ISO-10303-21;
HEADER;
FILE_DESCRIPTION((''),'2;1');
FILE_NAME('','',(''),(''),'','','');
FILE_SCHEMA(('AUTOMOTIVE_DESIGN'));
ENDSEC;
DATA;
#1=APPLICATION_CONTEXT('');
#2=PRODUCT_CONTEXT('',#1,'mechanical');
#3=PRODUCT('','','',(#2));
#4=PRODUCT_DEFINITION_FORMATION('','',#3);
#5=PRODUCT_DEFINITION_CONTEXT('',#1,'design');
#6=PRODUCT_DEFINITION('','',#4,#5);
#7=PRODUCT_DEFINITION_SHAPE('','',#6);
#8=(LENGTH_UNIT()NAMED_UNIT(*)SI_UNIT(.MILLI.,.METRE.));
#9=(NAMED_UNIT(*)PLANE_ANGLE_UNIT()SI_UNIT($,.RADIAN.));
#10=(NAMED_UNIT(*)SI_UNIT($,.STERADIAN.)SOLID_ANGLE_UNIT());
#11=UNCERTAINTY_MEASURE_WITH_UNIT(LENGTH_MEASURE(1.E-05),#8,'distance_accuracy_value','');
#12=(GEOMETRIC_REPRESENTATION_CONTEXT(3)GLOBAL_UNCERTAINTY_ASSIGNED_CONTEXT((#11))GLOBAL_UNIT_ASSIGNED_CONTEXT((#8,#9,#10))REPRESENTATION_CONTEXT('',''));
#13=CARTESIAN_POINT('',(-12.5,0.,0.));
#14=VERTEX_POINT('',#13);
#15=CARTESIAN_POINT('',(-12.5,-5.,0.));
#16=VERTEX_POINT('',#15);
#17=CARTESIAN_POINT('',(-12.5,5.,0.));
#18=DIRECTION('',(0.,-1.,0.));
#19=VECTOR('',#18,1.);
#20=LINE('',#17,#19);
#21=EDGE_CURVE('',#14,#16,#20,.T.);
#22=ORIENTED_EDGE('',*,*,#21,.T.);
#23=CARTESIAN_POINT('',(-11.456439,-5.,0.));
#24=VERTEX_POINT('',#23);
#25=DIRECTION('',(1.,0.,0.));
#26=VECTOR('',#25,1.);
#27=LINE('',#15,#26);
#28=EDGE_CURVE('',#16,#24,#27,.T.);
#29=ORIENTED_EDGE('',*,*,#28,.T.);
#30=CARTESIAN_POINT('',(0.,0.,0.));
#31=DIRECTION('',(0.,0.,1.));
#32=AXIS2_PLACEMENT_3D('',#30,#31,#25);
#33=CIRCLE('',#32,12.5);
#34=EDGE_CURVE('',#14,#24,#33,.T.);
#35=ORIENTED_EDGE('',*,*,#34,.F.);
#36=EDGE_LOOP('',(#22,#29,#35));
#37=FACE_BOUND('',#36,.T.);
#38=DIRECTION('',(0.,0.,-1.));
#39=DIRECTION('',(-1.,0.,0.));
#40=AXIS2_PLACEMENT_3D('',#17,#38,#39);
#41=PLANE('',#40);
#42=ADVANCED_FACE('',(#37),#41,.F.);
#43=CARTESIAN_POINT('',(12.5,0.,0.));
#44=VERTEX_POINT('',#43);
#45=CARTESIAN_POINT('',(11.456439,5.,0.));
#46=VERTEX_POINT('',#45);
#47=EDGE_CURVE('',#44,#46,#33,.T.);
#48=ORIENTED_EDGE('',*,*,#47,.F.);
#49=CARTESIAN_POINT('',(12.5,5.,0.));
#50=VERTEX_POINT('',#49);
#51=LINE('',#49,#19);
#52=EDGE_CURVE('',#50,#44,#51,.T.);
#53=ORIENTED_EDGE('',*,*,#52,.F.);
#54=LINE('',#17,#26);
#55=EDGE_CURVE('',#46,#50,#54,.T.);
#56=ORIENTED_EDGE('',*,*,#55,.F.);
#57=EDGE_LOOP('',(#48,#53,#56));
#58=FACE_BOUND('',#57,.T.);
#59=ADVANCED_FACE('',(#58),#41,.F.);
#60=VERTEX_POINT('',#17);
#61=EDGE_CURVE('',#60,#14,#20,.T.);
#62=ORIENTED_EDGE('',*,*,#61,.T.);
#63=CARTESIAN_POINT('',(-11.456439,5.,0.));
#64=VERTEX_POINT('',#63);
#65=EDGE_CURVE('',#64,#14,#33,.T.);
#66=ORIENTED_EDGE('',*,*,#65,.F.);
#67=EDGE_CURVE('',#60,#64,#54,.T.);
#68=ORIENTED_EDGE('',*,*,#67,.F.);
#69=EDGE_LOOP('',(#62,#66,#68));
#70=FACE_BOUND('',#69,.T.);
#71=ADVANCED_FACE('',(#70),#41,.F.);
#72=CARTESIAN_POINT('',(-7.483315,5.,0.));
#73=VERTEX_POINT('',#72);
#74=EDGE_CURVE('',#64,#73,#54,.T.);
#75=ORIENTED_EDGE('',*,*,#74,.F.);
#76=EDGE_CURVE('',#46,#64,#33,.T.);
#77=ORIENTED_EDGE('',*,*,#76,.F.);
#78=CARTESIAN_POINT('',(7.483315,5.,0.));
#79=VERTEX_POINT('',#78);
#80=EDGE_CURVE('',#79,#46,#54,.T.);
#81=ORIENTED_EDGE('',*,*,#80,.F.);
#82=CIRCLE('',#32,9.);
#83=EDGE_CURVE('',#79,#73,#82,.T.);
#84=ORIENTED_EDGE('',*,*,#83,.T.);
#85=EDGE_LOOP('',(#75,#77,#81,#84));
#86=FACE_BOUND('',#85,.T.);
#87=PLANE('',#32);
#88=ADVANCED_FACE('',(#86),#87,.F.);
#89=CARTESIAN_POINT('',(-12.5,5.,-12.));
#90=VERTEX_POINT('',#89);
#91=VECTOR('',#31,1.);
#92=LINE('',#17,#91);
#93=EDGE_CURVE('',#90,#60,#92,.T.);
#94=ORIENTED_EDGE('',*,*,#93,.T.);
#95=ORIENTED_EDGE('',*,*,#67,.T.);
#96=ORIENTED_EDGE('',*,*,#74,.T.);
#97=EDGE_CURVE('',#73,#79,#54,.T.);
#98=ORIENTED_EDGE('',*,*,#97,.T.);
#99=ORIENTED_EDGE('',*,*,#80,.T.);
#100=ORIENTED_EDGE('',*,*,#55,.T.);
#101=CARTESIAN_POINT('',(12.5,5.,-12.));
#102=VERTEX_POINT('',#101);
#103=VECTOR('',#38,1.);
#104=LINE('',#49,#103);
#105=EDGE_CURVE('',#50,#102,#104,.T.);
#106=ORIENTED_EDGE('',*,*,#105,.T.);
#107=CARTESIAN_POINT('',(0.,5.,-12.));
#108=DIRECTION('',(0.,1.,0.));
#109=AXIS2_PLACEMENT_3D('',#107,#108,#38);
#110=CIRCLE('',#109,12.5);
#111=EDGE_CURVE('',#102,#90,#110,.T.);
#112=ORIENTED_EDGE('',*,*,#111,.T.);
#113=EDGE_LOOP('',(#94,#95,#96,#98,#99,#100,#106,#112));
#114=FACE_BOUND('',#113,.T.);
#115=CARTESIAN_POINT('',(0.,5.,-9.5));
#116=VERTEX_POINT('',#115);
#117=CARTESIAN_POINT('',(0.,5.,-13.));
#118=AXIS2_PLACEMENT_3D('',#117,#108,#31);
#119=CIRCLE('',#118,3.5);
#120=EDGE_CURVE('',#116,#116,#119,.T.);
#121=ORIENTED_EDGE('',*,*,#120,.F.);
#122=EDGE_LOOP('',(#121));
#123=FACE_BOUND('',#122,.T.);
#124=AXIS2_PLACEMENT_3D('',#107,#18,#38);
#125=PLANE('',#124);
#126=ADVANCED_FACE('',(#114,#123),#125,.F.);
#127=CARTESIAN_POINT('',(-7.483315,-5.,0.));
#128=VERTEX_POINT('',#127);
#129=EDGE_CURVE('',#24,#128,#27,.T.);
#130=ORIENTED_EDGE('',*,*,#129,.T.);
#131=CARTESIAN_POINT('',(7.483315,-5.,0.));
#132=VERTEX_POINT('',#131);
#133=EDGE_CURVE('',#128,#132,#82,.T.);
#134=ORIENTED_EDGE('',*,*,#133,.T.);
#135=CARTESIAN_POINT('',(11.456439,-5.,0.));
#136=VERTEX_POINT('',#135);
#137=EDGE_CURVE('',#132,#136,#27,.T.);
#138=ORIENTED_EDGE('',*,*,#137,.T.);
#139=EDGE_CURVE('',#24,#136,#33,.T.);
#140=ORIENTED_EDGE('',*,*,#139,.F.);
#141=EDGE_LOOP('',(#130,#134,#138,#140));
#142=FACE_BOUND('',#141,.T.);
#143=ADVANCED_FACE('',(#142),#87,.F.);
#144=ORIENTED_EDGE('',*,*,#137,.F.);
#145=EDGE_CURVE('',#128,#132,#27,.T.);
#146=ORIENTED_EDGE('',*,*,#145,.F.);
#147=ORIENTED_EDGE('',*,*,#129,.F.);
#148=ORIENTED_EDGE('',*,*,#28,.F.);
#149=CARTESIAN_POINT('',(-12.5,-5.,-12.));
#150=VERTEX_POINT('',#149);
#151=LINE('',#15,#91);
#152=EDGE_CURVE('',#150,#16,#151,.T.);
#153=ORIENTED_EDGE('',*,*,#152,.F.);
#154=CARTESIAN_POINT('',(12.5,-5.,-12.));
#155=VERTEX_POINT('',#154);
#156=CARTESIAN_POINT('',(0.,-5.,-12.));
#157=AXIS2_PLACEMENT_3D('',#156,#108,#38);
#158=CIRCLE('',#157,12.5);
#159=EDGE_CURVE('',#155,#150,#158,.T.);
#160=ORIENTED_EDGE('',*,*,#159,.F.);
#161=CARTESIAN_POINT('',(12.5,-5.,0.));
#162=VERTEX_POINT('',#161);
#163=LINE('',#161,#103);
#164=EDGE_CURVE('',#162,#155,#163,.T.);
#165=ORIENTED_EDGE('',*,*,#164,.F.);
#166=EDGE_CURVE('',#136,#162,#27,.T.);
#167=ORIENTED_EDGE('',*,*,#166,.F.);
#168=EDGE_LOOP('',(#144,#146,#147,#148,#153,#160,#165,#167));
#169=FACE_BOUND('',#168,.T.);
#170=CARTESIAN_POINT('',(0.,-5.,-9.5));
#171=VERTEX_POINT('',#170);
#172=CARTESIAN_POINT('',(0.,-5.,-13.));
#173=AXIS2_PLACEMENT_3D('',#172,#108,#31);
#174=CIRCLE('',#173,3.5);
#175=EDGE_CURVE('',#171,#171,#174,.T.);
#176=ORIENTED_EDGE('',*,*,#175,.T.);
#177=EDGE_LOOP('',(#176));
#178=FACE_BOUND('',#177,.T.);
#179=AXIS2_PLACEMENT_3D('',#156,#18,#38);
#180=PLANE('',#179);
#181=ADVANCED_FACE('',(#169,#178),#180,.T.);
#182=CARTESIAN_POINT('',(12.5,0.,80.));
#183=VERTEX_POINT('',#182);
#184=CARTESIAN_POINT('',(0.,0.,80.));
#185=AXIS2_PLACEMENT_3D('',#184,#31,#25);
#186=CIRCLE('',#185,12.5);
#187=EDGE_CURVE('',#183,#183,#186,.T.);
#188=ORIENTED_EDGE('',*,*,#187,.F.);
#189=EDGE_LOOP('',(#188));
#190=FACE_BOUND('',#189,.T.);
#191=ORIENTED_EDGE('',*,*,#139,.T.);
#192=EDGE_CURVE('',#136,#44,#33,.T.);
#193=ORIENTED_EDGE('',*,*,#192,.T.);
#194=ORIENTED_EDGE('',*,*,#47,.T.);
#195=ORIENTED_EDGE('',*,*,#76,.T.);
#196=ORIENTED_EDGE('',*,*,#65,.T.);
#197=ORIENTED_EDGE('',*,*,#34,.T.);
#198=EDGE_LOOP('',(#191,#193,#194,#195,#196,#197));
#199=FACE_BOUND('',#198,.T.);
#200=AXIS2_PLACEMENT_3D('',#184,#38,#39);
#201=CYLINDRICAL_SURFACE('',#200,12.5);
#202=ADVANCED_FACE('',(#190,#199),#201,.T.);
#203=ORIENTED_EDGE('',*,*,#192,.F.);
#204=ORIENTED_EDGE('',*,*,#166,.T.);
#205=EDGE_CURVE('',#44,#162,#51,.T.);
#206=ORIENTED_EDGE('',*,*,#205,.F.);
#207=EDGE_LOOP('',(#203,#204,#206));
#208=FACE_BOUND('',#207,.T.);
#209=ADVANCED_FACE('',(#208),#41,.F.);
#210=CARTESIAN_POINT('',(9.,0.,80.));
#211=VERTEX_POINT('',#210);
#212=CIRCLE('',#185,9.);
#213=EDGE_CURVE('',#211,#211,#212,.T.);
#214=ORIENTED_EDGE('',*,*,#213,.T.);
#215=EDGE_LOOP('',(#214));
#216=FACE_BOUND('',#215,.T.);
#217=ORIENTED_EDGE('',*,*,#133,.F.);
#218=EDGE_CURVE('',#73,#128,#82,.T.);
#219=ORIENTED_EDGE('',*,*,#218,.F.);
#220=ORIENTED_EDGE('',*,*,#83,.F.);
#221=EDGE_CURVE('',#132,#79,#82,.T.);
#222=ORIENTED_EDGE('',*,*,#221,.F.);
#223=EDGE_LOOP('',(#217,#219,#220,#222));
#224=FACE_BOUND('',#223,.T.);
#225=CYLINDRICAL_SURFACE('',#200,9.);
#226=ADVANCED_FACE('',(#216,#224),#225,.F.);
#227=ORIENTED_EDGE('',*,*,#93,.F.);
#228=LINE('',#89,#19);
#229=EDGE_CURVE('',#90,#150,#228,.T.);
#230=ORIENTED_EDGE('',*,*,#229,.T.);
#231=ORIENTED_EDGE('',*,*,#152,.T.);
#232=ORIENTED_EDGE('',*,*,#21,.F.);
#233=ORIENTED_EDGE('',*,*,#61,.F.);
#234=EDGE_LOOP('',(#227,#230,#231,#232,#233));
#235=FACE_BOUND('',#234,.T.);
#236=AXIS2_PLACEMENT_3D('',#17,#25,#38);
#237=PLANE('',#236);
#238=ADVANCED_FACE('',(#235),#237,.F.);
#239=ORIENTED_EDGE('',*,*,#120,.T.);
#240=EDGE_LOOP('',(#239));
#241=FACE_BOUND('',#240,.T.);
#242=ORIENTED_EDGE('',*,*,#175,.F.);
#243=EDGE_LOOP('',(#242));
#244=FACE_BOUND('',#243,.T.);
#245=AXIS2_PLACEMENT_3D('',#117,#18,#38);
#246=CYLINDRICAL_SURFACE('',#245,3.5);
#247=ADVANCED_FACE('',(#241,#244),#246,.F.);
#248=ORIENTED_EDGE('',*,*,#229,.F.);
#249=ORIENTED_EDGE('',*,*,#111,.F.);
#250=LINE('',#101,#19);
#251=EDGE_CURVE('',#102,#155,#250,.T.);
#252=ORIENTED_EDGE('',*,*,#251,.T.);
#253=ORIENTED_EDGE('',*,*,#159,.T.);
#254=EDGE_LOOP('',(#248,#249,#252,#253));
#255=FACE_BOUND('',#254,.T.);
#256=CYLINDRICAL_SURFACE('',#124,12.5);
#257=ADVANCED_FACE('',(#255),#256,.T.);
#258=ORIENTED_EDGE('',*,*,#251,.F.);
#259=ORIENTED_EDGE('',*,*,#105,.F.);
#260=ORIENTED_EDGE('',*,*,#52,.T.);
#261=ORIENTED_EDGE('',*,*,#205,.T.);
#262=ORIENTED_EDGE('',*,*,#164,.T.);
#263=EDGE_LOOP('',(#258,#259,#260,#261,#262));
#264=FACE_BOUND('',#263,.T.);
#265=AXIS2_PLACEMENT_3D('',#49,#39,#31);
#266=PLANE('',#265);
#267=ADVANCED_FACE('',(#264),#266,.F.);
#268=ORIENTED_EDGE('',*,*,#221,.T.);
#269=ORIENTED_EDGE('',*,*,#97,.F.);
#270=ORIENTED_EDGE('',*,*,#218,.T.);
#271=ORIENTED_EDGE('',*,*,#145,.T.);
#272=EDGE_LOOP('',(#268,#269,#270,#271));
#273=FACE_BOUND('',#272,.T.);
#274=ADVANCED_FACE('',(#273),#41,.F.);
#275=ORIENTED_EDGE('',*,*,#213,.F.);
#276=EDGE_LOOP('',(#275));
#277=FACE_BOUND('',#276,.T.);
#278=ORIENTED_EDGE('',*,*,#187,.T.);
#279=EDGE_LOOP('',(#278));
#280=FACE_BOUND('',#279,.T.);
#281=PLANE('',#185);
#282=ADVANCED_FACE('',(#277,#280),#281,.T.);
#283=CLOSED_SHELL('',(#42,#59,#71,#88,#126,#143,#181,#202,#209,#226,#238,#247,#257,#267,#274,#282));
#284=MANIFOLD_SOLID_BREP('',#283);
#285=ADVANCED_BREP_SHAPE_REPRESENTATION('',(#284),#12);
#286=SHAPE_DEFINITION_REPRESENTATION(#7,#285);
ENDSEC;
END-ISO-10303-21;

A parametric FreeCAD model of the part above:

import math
import FreeCAD as App
import Part
import Sketcher

doc = App.newDocument("Part")
params = doc.addObject("Spreadsheet::Sheet", "Params")
for row, (alias, value) in enumerate([
    ("sketch1_diameter", "25 mm"),
    ("sketch1_diameter2", "18 mm"),
    ("pad1_length", "80 mm"),
    ("sketch2_diameter", "7 mm"),
    ("sketch2_radius", "12.5 mm"),
    ("sketch2_height", "12 mm"),
    ("pad2_length", "10 mm"),
], start=1):
    params.set(f"A{row}", alias)
    params.set(f"B{row}", "=" + value)
    params.setAlias(f"B{row}", alias)

body = doc.addObject("PartDesign::Body", "Body")

# Sketch on XY plane
sketch1 = body.newObject("Sketcher::SketchObject", "Sketch")
sketch1.AttachmentSupport = (doc.getObject("XY_Plane"), [""])
sketch1.MapMode = "FlatFace"
sketch1.addGeometry(Part.Circle(App.Vector(0, 0, 0), App.Vector(0, 0, 1), 12), False)
sketch1.addGeometry(Part.Circle(App.Vector(0, 0, 0), App.Vector(0, 0, 1), 9), False)
sketch1.addConstraint(Sketcher.Constraint("Coincident", 0, 3, -1, 1))
sketch1.addConstraint(Sketcher.Constraint("Coincident", 1, 3, -1, 1))
sketch1.addConstraint(Sketcher.Constraint("Diameter", 0, 25.0))
sketch1.addConstraint(Sketcher.Constraint("Diameter", 1, 18.0))
sketch1.setExpression("Constraints[2]", "Params.sketch1_diameter")
sketch1.setExpression("Constraints[3]", "Params.sketch1_diameter2")
pad1 = body.newObject("PartDesign::Pad", "Pad")
pad1.Profile = sketch1
pad1.setExpression("Length", "Params.pad1_length")

# Sketch on XZ plane
sketch2 = body.newObject("Sketcher::SketchObject", "Sketch001")
sketch2.AttachmentSupport = (doc.getObject("XZ_Plane"), [""])
sketch2.MapMode = "FlatFace"
sketch2.addGeometry(Part.LineSegment(App.Vector(-12.5, 0, 0), App.Vector(12.5, 0, 0)), False)
sketch2.addGeometry(Part.LineSegment(App.Vector(12.5, 0, 0), App.Vector(12.5, -12, 0)), False)
sketch2.addGeometry(Part.ArcOfCircle(Part.Circle(App.Vector(0, -12, 0), App.Vector(0, 0, 1), 12.5), math.radians(180), math.radians(360)), False)
sketch2.addGeometry(Part.LineSegment(App.Vector(-12.5, -12, 0), App.Vector(-12.5, 0, 0)), False)
sketch2.addGeometry(Part.Circle(App.Vector(0, -13, 0), App.Vector(0, 0, 1), 3.5), False)
sketch2.addConstraint(Sketcher.Constraint("Coincident", 0, 2, 1, 1))
sketch2.addConstraint(Sketcher.Constraint("Tangent", 1, 2, 2, 2))
sketch2.addConstraint(Sketcher.Constraint("Tangent", 2, 1, 3, 1))
sketch2.addConstraint(Sketcher.Constraint("Coincident", 3, 2, 0, 1))
sketch2.addConstraint(Sketcher.Constraint("Horizontal", 0))
sketch2.addConstraint(Sketcher.Constraint("Vertical", 1))
sketch2.addConstraint(Sketcher.Constraint("Vertical", 3))
sketch2.addConstraint(Sketcher.Constraint("Symmetric", 0, 2, 3, 2, -1, 1))
sketch2.addConstraint(Sketcher.Constraint("PointOnObject", 4, 3, -2))
sketch2.addConstraint(Sketcher.Constraint("Diameter", 4, 7.0))
sketch2.addConstraint(Sketcher.Constraint("Radius", 2, 12.5))
sketch2.addConstraint(Sketcher.Constraint("DistanceY", 1, 2, 1, 1, 12.0))
sketch2.addConstraint(Sketcher.Constraint("DistanceY", 4, 3, -1, 1, 13.0))
sketch2.setExpression("Constraints[9]", "Params.sketch2_diameter")
sketch2.setExpression("Constraints[10]", "Params.sketch2_radius")
sketch2.setExpression("Constraints[11]", "Params.sketch2_height")
pad2 = body.newObject("PartDesign::Pad", "Pad001")
pad2.Profile = sketch2
pad2.setExpression("Length", "Params.pad2_length")
pad2.Midplane = True

doc.recompute()
